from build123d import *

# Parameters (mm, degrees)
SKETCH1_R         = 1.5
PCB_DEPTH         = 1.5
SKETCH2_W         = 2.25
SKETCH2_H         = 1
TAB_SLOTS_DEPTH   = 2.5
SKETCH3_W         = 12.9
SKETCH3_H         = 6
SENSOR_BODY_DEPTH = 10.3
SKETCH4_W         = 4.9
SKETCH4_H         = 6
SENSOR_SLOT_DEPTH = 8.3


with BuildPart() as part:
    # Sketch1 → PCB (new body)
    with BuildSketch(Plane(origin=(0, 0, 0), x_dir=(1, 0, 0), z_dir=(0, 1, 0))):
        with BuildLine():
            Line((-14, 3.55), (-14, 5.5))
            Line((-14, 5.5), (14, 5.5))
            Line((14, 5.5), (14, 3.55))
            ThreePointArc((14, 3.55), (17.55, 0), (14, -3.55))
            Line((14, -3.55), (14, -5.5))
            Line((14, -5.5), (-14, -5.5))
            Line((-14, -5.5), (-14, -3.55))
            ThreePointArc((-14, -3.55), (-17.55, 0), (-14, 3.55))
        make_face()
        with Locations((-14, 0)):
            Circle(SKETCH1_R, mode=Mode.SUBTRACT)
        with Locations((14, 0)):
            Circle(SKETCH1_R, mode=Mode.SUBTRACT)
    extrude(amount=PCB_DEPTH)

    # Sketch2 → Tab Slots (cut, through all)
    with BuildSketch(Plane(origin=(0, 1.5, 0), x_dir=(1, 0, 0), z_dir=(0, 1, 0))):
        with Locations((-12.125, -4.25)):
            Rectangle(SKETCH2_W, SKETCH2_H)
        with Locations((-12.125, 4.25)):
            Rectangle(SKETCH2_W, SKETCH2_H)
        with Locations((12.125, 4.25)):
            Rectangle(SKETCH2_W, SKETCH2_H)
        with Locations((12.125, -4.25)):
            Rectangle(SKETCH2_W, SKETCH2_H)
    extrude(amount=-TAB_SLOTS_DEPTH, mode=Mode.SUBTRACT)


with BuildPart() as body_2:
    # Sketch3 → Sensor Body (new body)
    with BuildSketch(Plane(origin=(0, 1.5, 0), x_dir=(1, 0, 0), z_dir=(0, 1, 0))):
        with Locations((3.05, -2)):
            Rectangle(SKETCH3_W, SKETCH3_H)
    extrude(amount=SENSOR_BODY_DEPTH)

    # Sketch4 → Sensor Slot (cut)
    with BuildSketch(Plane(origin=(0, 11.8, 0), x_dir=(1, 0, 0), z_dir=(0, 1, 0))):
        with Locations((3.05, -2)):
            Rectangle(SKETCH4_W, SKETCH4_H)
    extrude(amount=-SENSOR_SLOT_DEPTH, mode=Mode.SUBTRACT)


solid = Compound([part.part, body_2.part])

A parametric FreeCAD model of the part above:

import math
import FreeCAD as App
import Part
import Sketcher


def add_polygon(sketch, points):
    """Adds a closed chain of lines whose ends are joined by coincident constraints."""
    first, n = sketch.GeometryCount, len(points)
    for a, b in zip(points, points[1:] + points[:1]):
        sketch.addGeometry(Part.LineSegment(App.Vector(*a, 0), App.Vector(*b, 0)), False)
    for i in range(n):
        sketch.addConstraint(Sketcher.Constraint("Coincident", first + i, 2, first + (i + 1) % n, 1))

doc = App.newDocument("Part")
body = doc.addObject("PartDesign::Body", "Body")

# Sketch on XZ plane
sketch1 = body.newObject("Sketcher::SketchObject", "Sketch")
sketch1.AttachmentSupport = (doc.getObject("XZ_Plane"), [""])
sketch1.MapMode = "FlatFace"
sketch1.addGeometry(Part.LineSegment(App.Vector(-14, -5.5, 0), App.Vector(-14, -3.55, 0)), False)
sketch1.addGeometry(Part.ArcOfCircle(Part.Circle(App.Vector(-14, 0, 0), App.Vector(0, 0, 1), 3.55), math.radians(90), math.radians(270)), False)
sketch1.addGeometry(Part.LineSegment(App.Vector(-14, 3.55, 0), App.Vector(-14, 5.5, 0)), False)
sketch1.addGeometry(Part.LineSegment(App.Vector(-14, 5.5, 0), App.Vector(14, 5.5, 0)), False)
sketch1.addGeometry(Part.LineSegment(App.Vector(14, 5.5, 0), App.Vector(14, 3.55, 0)), False)
sketch1.addGeometry(Part.ArcOfCircle(Part.Circle(App.Vector(14, 0, 0), App.Vector(0, 0, 1), 3.55), math.radians(-90), math.radians(90)), False)
sketch1.addGeometry(Part.LineSegment(App.Vector(14, -3.55, 0), App.Vector(14, -5.5, 0)), False)
sketch1.addGeometry(Part.LineSegment(App.Vector(14, -5.5, 0), App.Vector(-14, -5.5, 0)), False)
sketch1.addGeometry(Part.Circle(App.Vector(14, 0, 0), App.Vector(0, 0, 1), 1.5), False)
sketch1.addGeometry(Part.Circle(App.Vector(-14, 0, 0), App.Vector(0, 0, 1), 1.5), False)
sketch1.addConstraint(Sketcher.Constraint("Coincident", 0, 2, 1, 2))
sketch1.addConstraint(Sketcher.Constraint("Coincident", 1, 1, 2, 1))
sketch1.addConstraint(Sketcher.Constraint("Coincident", 2, 2, 3, 1))
sketch1.addConstraint(Sketcher.Constraint("Coincident", 3, 2, 4, 1))
sketch1.addConstraint(Sketcher.Constraint("Coincident", 4, 2, 5, 2))
sketch1.addConstraint(Sketcher.Constraint("Coincident", 5, 1, 6, 1))
sketch1.addConstraint(Sketcher.Constraint("Coincident", 6, 2, 7, 1))
sketch1.addConstraint(Sketcher.Constraint("Coincident", 7, 2, 0, 1))
sketch1.addConstraint(Sketcher.Constraint("Vertical", 0))
sketch1.addConstraint(Sketcher.Constraint("Vertical", 2))
sketch1.addConstraint(Sketcher.Constraint("Horizontal", 3))
sketch1.addConstraint(Sketcher.Constraint("Vertical", 4))
sketch1.addConstraint(Sketcher.Constraint("Vertical", 6))
sketch1.addConstraint(Sketcher.Constraint("Horizontal", 7))
sketch1.addConstraint(Sketcher.Constraint("Coincident", 8, 3, 5, 3))
sketch1.addConstraint(Sketcher.Constraint("Coincident", 9, 3, 1, 3))
sketch1.addConstraint(Sketcher.Constraint("Equal", 1, 5))
sketch1.addConstraint(Sketcher.Constraint("Equal", 8, 9))
sketch1.addConstraint(Sketcher.Constraint("Symmetric", 1, 3, 5, 3, -1, 1))
sketch1.addConstraint(Sketcher.Constraint("Symmetric", 2, 2, 6, 2, -1, 1))
sketch1.addConstraint(Sketcher.Constraint("Symmetric", 1, 1, 4, 2, -2))
sketch1.addConstraint(Sketcher.Constraint("Vertical", 9, 3, 0, 2))
sketch1.addConstraint(Sketcher.Constraint("Vertical", 0, 2, 1, 1))
sketch1.addConstraint(Sketcher.Constraint("Diameter", 8, 3.0))
sketch1.addConstraint(Sketcher.Constraint("DistanceX", 3, 1, 3, 2, 28.0))
sketch1.addConstraint(Sketcher.Constraint("Radius", 1, 3.55))
sketch1.addConstraint(Sketcher.Constraint("DistanceY", 6, 2, 3, 2, 11.0))
pad1 = body.newObject("PartDesign::Pad", "Pad")
pad1.Profile = sketch1
pad1.Length = 1.5
pad1.Reversed = True

# Sketch on XZ plane
sketch2 = body.newObject("Sketcher::SketchObject", "Sketch001")
sketch2.AttachmentSupport = (doc.getObject("XZ_Plane"), [""])
sketch2.MapMode = "FlatFace"
sketch2.AttachmentOffset = App.Placement(App.Vector(0, 0, -1.5), App.Rotation())
add_polygon(sketch2, [(-13.25, 3.75), (-13.25, 4.75), (-11, 4.75), (-11, 3.75)])  # lines 0-3
add_polygon(sketch2, [(-13.25, -4.75), (-13.25, -3.75), (-11, -3.75), (-11, -4.75)])  # lines 4-7
add_polygon(sketch2, [(11, -4.75), (11, -3.75), (13.25, -3.75), (13.25, -4.75)])  # lines 8-11
add_polygon(sketch2, [(11, 3.75), (11, 4.75), (13.25, 4.75), (13.25, 3.75)])  # lines 12-15
sketch2.addConstraint(Sketcher.Constraint("Vertical", 0))
sketch2.addConstraint(Sketcher.Constraint("Horizontal", 1))
sketch2.addConstraint(Sketcher.Constraint("Vertical", 2))
sketch2.addConstraint(Sketcher.Constraint("Horizontal", 3))
sketch2.addConstraint(Sketcher.Constraint("Vertical", 4))
sketch2.addConstraint(Sketcher.Constraint("Horizontal", 5))
sketch2.addConstraint(Sketcher.Constraint("Vertical", 6))
sketch2.addConstraint(Sketcher.Constraint("Horizontal", 7))
sketch2.addConstraint(Sketcher.Constraint("Vertical", 8))
sketch2.addConstraint(Sketcher.Constraint("Horizontal", 9))
sketch2.addConstraint(Sketcher.Constraint("Vertical", 10))
sketch2.addConstraint(Sketcher.Constraint("Horizontal", 11))
sketch2.addConstraint(Sketcher.Constraint("Vertical", 12))
sketch2.addConstraint(Sketcher.Constraint("Horizontal", 13))
sketch2.addConstraint(Sketcher.Constraint("Vertical", 14))
sketch2.addConstraint(Sketcher.Constraint("Horizontal", 15))
sketch2.addConstraint(Sketcher.Constraint("Symmetric", 2, 2, 8, 2, -1, 1))
sketch2.addConstraint(Sketcher.Constraint("Symmetric", 0, 2, 10, 2, -1, 1))
sketch2.addConstraint(Sketcher.Constraint("Symmetric", 6, 2, 12, 2, -1, 1))
sketch2.addConstraint(Sketcher.Constraint("Symmetric", 4, 2, 14, 2, -1, 1))
sketch2.addConstraint(Sketcher.Constraint("Symmetric", 5, 2, 8, 2, -2))
sketch2.addConstraint(Sketcher.Constraint("Symmetric", 7, 2, 10, 2, -2))
sketch2.addConstraint(Sketcher.Constraint("DistanceY", 0, 1, 0, 2, 1.0))
sketch2.addConstraint(Sketcher.Constraint("DistanceX", 1, 2, -1, 1, 11.0))
sketch2.addConstraint(Sketcher.Constraint("DistanceX", 1, 1, 1, 2, 2.25))
sketch2.addConstraint(Sketcher.Constraint("DistanceY", 4, 2, 3, 2, 7.5))
pocket1 = body.newObject("PartDesign::Pocket", "Pocket")
pocket1.Profile = sketch2
pocket1.Type = "ThroughAll"
pocket1.Reversed = True
body2 = doc.addObject("PartDesign::Body", "Body001")

# Sketch on XZ plane
sketch3 = body2.newObject("Sketcher::SketchObject", "Sketch002")
sketch3.AttachmentSupport = (doc.getObject("XZ_Plane001"), [""])
sketch3.MapMode = "FlatFace"
sketch3.AttachmentOffset = App.Placement(App.Vector(0, 0, -1.5), App.Rotation())
add_polygon(sketch3, [(-3.4, -1), (-3.4, 5), (9.5, 5), (9.5, -1)])  # lines 0-3
sketch3.addConstraint(Sketcher.Constraint("Vertical", 0))
sketch3.addConstraint(Sketcher.Constraint("Horizontal", 1))
sketch3.addConstraint(Sketcher.Constraint("Vertical", 2))
sketch3.addConstraint(Sketcher.Constraint("Horizontal", 3))
sketch3.addConstraint(Sketcher.Constraint("DistanceY", 0, 1, 0, 2, 6.0))
sketch3.addConstraint(Sketcher.Constraint("DistanceX", 1, 1, 1, 2, 12.9))
sketch3.addConstraint(Sketcher.Constraint("DistanceY", -1, 1, 0, 2, 5.0))
sketch3.addConstraint(Sketcher.Constraint("DistanceX", 0, 2, -1, 1, 3.4))
pad2 = body2.newObject("PartDesign::Pad", "Pad001")
pad2.Profile = sketch3
pad2.Length = 10.3
pad2.Reversed = True

# Sketch on XZ plane
sketch4 = body2.newObject("Sketcher::SketchObject", "Sketch003")
sketch4.AttachmentSupport = (doc.getObject("XZ_Plane001"), [""])
sketch4.MapMode = "FlatFace"
sketch4.AttachmentOffset = App.Placement(App.Vector(0, 0, -11.8), App.Rotation())
add_polygon(sketch4, [(0.6, -1), (0.6, 5), (5.5, 5), (5.5, -1)])  # lines 0-3
sketch4.addConstraint(Sketcher.Constraint("Vertical", 0))
sketch4.addConstraint(Sketcher.Constraint("Horizontal", 1))
sketch4.addConstraint(Sketcher.Constraint("Vertical", 2))
sketch4.addConstraint(Sketcher.Constraint("Horizontal", 3))
sketch4.addConstraint(Sketcher.Constraint("DistanceY", 0, 1, 0, 2, 6.0))
sketch4.addConstraint(Sketcher.Constraint("DistanceX", 1, 1, 1, 2, 4.9))
sketch4.addConstraint(Sketcher.Constraint("DistanceY", -1, 1, 0, 2, 5.0))
sketch4.addConstraint(Sketcher.Constraint("DistanceX", -1, 1, 0, 2, 0.6))
pocket2 = body2.newObject("PartDesign::Pocket", "Pocket001")
pocket2.Profile = sketch4
pocket2.Length = 8.3
pocket2.Reversed = True

doc.recompute()
